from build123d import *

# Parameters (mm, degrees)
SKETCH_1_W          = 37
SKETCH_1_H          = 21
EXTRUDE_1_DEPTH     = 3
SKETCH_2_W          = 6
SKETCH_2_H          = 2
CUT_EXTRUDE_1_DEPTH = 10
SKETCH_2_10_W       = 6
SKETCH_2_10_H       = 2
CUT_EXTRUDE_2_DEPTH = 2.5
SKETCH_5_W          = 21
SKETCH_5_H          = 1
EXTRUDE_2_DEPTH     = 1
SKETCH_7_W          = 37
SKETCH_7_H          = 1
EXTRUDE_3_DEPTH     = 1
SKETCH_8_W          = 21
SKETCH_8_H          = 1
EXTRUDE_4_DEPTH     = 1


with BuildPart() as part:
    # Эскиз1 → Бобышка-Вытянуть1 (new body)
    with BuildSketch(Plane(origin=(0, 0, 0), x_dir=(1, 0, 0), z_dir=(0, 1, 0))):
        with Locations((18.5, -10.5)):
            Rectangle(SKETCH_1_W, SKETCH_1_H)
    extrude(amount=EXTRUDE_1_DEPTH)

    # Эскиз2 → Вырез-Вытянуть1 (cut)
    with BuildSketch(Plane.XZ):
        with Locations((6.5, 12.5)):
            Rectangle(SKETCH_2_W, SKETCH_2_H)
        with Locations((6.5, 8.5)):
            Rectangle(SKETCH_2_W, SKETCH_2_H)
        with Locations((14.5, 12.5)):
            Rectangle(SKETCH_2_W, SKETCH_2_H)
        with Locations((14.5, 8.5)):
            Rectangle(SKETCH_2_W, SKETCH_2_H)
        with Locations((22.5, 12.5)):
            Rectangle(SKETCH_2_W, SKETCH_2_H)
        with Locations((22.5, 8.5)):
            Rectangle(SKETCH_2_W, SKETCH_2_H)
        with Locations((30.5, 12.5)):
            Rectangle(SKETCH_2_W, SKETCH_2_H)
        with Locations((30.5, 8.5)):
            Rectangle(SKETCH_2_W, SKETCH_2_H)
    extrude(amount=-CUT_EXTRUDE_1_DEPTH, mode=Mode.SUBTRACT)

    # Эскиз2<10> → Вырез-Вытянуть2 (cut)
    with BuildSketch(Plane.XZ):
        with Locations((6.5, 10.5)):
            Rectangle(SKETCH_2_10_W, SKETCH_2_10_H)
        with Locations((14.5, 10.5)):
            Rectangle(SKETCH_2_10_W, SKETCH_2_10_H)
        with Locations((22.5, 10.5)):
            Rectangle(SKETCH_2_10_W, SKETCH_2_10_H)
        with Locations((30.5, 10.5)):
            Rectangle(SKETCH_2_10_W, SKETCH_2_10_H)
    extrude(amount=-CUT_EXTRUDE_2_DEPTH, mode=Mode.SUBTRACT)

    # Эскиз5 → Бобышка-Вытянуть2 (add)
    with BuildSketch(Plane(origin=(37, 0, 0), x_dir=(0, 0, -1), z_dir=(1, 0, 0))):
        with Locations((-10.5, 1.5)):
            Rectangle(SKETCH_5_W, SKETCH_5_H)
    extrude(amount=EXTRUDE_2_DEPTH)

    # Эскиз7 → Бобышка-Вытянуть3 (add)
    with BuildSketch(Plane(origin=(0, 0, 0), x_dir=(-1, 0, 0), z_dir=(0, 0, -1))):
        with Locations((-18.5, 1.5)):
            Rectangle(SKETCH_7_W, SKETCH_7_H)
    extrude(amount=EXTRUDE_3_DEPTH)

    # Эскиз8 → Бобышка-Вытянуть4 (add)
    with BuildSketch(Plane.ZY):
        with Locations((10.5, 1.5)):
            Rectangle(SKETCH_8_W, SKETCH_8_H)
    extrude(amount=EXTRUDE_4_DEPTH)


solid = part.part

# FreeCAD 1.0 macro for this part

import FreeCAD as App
import Part
import Sketcher
from FreeCAD import Vector
Q = App.Units.Quantity

doc = App.newDocument("Part")
body = doc.addObject("PartDesign::Body", "Body")

sketch1 = body.newObject("Sketcher::SketchObject", "Sketch")
sketch1.AttachmentSupport = (doc.getObject("XZ_Plane"), [""])
sketch1.MapMode = "FlatFace"
sketch1.addGeometry(Part.LineSegment(Vector(0, 0, 0), Vector(0, 21, 0)), False)
sketch1.addGeometry(Part.LineSegment(Vector(0, 21, 0), Vector(37, 21, 0)), False)
sketch1.addGeometry(Part.LineSegment(Vector(37, 21, 0), Vector(37, 0, 0)), False)
sketch1.addGeometry(Part.LineSegment(Vector(37, 0, 0), Vector(0, 0, 0)), False)
sketch1.addConstraint(Sketcher.Constraint("Coincident", 0, 2, 1, 1))
sketch1.addConstraint(Sketcher.Constraint("Coincident", 1, 2, 2, 1))
sketch1.addConstraint(Sketcher.Constraint("Coincident", 2, 2, 3, 1))
sketch1.addConstraint(Sketcher.Constraint("Coincident", 3, 2, 0, 1))
sketch1.addConstraint(Sketcher.Constraint("Vertical", 0))
sketch1.addConstraint(Sketcher.Constraint("Horizontal", 1))
sketch1.addConstraint(Sketcher.Constraint("Vertical", 2))
sketch1.addConstraint(Sketcher.Constraint("Horizontal", 3))
sketch1.addConstraint(Sketcher.Constraint("Coincident", 3, 2, -1, 1))
sketch1.addConstraint(Sketcher.Constraint("DistanceX", 1, 1, 1, 2, Q("37 mm")))
sketch1.addConstraint(Sketcher.Constraint("DistanceY", 0, 1, 0, 2, Q("21 mm")))
pad1 = body.newObject("PartDesign::Pad", "Pad")
pad1.Profile = sketch1
pad1.Length = 3
pad1.Reversed = True

sketch2 = body.newObject("Sketcher::SketchObject", "Sketch001")
sketch2.AttachmentSupport = (doc.getObject("XZ_Plane"), [""])
sketch2.MapMode = "FlatFace"
sketch2.addGeometry(Part.LineSegment(Vector(3.5, 13.5, 0), Vector(3.5, 11.5, 0)), False)
sketch2.addGeometry(Part.LineSegment(Vector(3.5, 11.5, 0), Vector(9.5, 11.5, 0)), False)
sketch2.addGeometry(Part.LineSegment(Vector(9.5, 11.5, 0), Vector(9.5, 13.5, 0)), False)
sketch2.addGeometry(Part.LineSegment(Vector(9.5, 13.5, 0), Vector(3.5, 13.5, 0)), False)
sketch2.addGeometry(Part.LineSegment(Vector(3.5, 9.5, 0), Vector(3.5, 7.5, 0)), False)
sketch2.addGeometry(Part.LineSegment(Vector(3.5, 7.5, 0), Vector(9.5, 7.5, 0)), False)
sketch2.addGeometry(Part.LineSegment(Vector(9.5, 7.5, 0), Vector(9.5, 9.5, 0)), False)
sketch2.addGeometry(Part.LineSegment(Vector(9.5, 9.5, 0), Vector(3.5, 9.5, 0)), False)
sketch2.addGeometry(Part.LineSegment(Vector(11.5, 13.5, 0), Vector(11.5, 11.5, 0)), False)
sketch2.addGeometry(Part.LineSegment(Vector(11.5, 11.5, 0), Vector(17.5, 11.5, 0)), False)
sketch2.addGeometry(Part.LineSegment(Vector(17.5, 11.5, 0), Vector(17.5, 13.5, 0)), False)
sketch2.addGeometry(Part.LineSegment(Vector(17.5, 13.5, 0), Vector(11.5, 13.5, 0)), False)
sketch2.addGeometry(Part.LineSegment(Vector(11.5, 9.5, 0), Vector(11.5, 7.5, 0)), False)
sketch2.addGeometry(Part.LineSegment(Vector(11.5, 7.5, 0), Vector(17.5, 7.5, 0)), False)
sketch2.addGeometry(Part.LineSegment(Vector(17.5, 7.5, 0), Vector(17.5, 9.5, 0)), False)
sketch2.addGeometry(Part.LineSegment(Vector(17.5, 9.5, 0), Vector(11.5, 9.5, 0)), False)
sketch2.addGeometry(Part.LineSegment(Vector(19.5, 13.5, 0), Vector(19.5, 11.5, 0)), False)
sketch2.addGeometry(Part.LineSegment(Vector(19.5, 11.5, 0), Vector(25.5, 11.5, 0)), False)
sketch2.addGeometry(Part.LineSegment(Vector(25.5, 11.5, 0), Vector(25.5, 13.5, 0)), False)
sketch2.addGeometry(Part.LineSegment(Vector(25.5, 13.5, 0), Vector(19.5, 13.5, 0)), False)
sketch2.addGeometry(Part.LineSegment(Vector(19.5, 9.5, 0), Vector(19.5, 7.5, 0)), False)
sketch2.addGeometry(Part.LineSegment(Vector(19.5, 7.5, 0), Vector(25.5, 7.5, 0)), False)
sketch2.addGeometry(Part.LineSegment(Vector(25.5, 7.5, 0), Vector(25.5, 9.5, 0)), False)
sketch2.addGeometry(Part.LineSegment(Vector(25.5, 9.5, 0), Vector(19.5, 9.5, 0)), False)
sketch2.addGeometry(Part.LineSegment(Vector(27.5, 13.5, 0), Vector(27.5, 11.5, 0)), False)
sketch2.addGeometry(Part.LineSegment(Vector(27.5, 11.5, 0), Vector(33.5, 11.5, 0)), False)
sketch2.addGeometry(Part.LineSegment(Vector(33.5, 11.5, 0), Vector(33.5, 13.5, 0)), False)
sketch2.addGeometry(Part.LineSegment(Vector(33.5, 13.5, 0), Vector(27.5, 13.5, 0)), False)
sketch2.addGeometry(Part.LineSegment(Vector(27.5, 9.5, 0), Vector(27.5, 7.5, 0)), False)
sketch2.addGeometry(Part.LineSegment(Vector(27.5, 7.5, 0), Vector(33.5, 7.5, 0)), False)
sketch2.addGeometry(Part.LineSegment(Vector(33.5, 7.5, 0), Vector(33.5, 9.5, 0)), False)
sketch2.addGeometry(Part.LineSegment(Vector(33.5, 9.5, 0), Vector(27.5, 9.5, 0)), False)
sketch2.addConstraint(Sketcher.Constraint("Coincident", 0, 2, 1, 1))
sketch2.addConstraint(Sketcher.Constraint("Coincident", 1, 2, 2, 1))
sketch2.addConstraint(Sketcher.Constraint("Coincident", 2, 2, 3, 1))
sketch2.addConstraint(Sketcher.Constraint("Coincident", 3, 2, 0, 1))
sketch2.addConstraint(Sketcher.Constraint("Coincident", 4, 2, 5, 1))
sketch2.addConstraint(Sketcher.Constraint("Coincident", 5, 2, 6, 1))
sketch2.addConstraint(Sketcher.Constraint("Coincident", 6, 2, 7, 1))
sketch2.addConstraint(Sketcher.Constraint("Coincident", 7, 2, 4, 1))
sketch2.addConstraint(Sketcher.Constraint("Coincident", 8, 2, 9, 1))
sketch2.addConstraint(Sketcher.Constraint("Coincident", 9, 2, 10, 1))
sketch2.addConstraint(Sketcher.Constraint("Coincident", 10, 2, 11, 1))
sketch2.addConstraint(Sketcher.Constraint("Coincident", 11, 2, 8, 1))
sketch2.addConstraint(Sketcher.Constraint("Coincident", 12, 2, 13, 1))
sketch2.addConstraint(Sketcher.Constraint("Coincident", 13, 2, 14, 1))
sketch2.addConstraint(Sketcher.Constraint("Coincident", 14, 2, 15, 1))
sketch2.addConstraint(Sketcher.Constraint("Coincident", 15, 2, 12, 1))
sketch2.addConstraint(Sketcher.Constraint("Coincident", 16, 2, 17, 1))
sketch2.addConstraint(Sketcher.Constraint("Coincident", 17, 2, 18, 1))
sketch2.addConstraint(Sketcher.Constraint("Coincident", 18, 2, 19, 1))
sketch2.addConstraint(Sketcher.Constraint("Coincident", 19, 2, 16, 1))
sketch2.addConstraint(Sketcher.Constraint("Coincident", 20, 2, 21, 1))
sketch2.addConstraint(Sketcher.Constraint("Coincident", 21, 2, 22, 1))
sketch2.addConstraint(Sketcher.Constraint("Coincident", 22, 2, 23, 1))
sketch2.addConstraint(Sketcher.Constraint("Coincident", 23, 2, 20, 1))
sketch2.addConstraint(Sketcher.Constraint("Coincident", 24, 2, 25, 1))
sketch2.addConstraint(Sketcher.Constraint("Coincident", 25, 2, 26, 1))
sketch2.addConstraint(Sketcher.Constraint("Coincident", 26, 2, 27, 1))
sketch2.addConstraint(Sketcher.Constraint("Coincident", 27, 2, 24, 1))
sketch2.addConstraint(Sketcher.Constraint("Coincident", 28, 2, 29, 1))
sketch2.addConstraint(Sketcher.Constraint("Coincident", 29, 2, 30, 1))
sketch2.addConstraint(Sketcher.Constraint("Coincident", 30, 2, 31, 1))
sketch2.addConstraint(Sketcher.Constraint("Coincident", 31, 2, 28, 1))
sketch2.addConstraint(Sketcher.Constraint("Vertical", 0))
sketch2.addConstraint(Sketcher.Constraint("Horizontal", 1))
sketch2.addConstraint(Sketcher.Constraint("Vertical", 2))
sketch2.addConstraint(Sketcher.Constraint("Horizontal", 3))
sketch2.addConstraint(Sketcher.Constraint("Vertical", 4))
sketch2.addConstraint(Sketcher.Constraint("Horizontal", 5))
sketch2.addConstraint(Sketcher.Constraint("Vertical", 6))
sketch2.addConstraint(Sketcher.Constraint("Horizontal", 7))
sketch2.addConstraint(Sketcher.Constraint("Vertical", 8))
sketch2.addConstraint(Sketcher.Constraint("Horizontal", 9))
sketch2.addConstraint(Sketcher.Constraint("Vertical", 10))
sketch2.addConstraint(Sketcher.Constraint("Horizontal", 11))
sketch2.addConstraint(Sketcher.Constraint("Vertical", 12))
sketch2.addConstraint(Sketcher.Constraint("Horizontal", 13))
sketch2.addConstraint(Sketcher.Constraint("Vertical", 14))
sketch2.addConstraint(Sketcher.Constraint("Horizontal", 15))
sketch2.addConstraint(Sketcher.Constraint("Vertical", 16))
sketch2.addConstraint(Sketcher.Constraint("Horizontal", 17))
sketch2.addConstraint(Sketcher.Constraint("Vertical", 18))
sketch2.addConstraint(Sketcher.Constraint("Horizontal", 19))
sketch2.addConstraint(Sketcher.Constraint("Vertical", 20))
sketch2.addConstraint(Sketcher.Constraint("Horizontal", 21))
sketch2.addConstraint(Sketcher.Constraint("Vertical", 22))
sketch2.addConstraint(Sketcher.Constraint("Horizontal", 23))
sketch2.addConstraint(Sketcher.Constraint("Vertical", 24))
sketch2.addConstraint(Sketcher.Constraint("Horizontal", 25))
sketch2.addConstraint(Sketcher.Constraint("Vertical", 26))
sketch2.addConstraint(Sketcher.Constraint("Horizontal", 27))
sketch2.addConstraint(Sketcher.Constraint("Vertical", 28))
sketch2.addConstraint(Sketcher.Constraint("Horizontal", 29))
sketch2.addConstraint(Sketcher.Constraint("Vertical", 30))
sketch2.addConstraint(Sketcher.Constraint("Horizontal", 31))
sketch2.addConstraint(Sketcher.Constraint("Horizontal", 1, 2, 8, 2))
sketch2.addConstraint(Sketcher.Constraint("Horizontal", 3, 2, 10, 2))
sketch2.addConstraint(Sketcher.Constraint("Horizontal", 5, 2, 12, 2))
sketch2.addConstraint(Sketcher.Constraint("Horizontal", 7, 2, 14, 2))
sketch2.addConstraint(Sketcher.Constraint("Horizontal", 9, 2, 16, 2))
sketch2.addConstraint(Sketcher.Constraint("Horizontal", 11, 2, 18, 2))
sketch2.addConstraint(Sketcher.Constraint("Horizontal", 13, 2, 20, 2))
sketch2.addConstraint(Sketcher.Constraint("Horizontal", 15, 2, 22, 2))
sketch2.addConstraint(Sketcher.Constraint("Horizontal", 17, 2, 24, 2))
sketch2.addConstraint(Sketcher.Constraint("Horizontal", 19, 2, 26, 2))
sketch2.addConstraint(Sketcher.Constraint("Horizontal", 21, 2, 28, 2))
sketch2.addConstraint(Sketcher.Constraint("Horizontal", 23, 2, 30, 2))
sketch2.addConstraint(Sketcher.Constraint("Vertical", 3, 2, 4, 2))
sketch2.addConstraint(Sketcher.Constraint("Vertical", 2, 2, 5, 2))
sketch2.addConstraint(Sketcher.Constraint("Vertical", 11, 2, 12, 2))
sketch2.addConstraint(Sketcher.Constraint("Vertical", 10, 2, 13, 2))
sketch2.addConstraint(Sketcher.Constraint("Vertical", 19, 2, 20, 2))
sketch2.addConstraint(Sketcher.Constraint("Vertical", 18, 2, 21, 2))
sketch2.addConstraint(Sketcher.Constraint("Vertical", 27, 2, 28, 2))
sketch2.addConstraint(Sketcher.Constraint("Vertical", 26, 2, 29, 2))
sketch2.addConstraint(Sketcher.Constraint("Equal", 7, 9))
sketch2.addConstraint(Sketcher.Constraint("Equal", 15, 17))
sketch2.addConstraint(Sketcher.Constraint("Equal", 23, 25))
sketch2.addConstraint(Sketcher.Constraint("Equal", 2, 4))
sketch2.addConstraint(Sketcher.Constraint("DistanceX", 1, 1, 1, 2, Q("6 mm")))
sketch2.addConstraint(Sketcher.Constraint("DistanceY", 0, 2, 0, 1, Q("2 mm")))
sketch2.addConstraint(Sketcher.Constraint("DistanceY", 4, 2, 0, 2, Q("4 mm")))
sketch2.addConstraint(Sketcher.Constraint("DistanceX", 1, 2, 8, 2, Q("2 mm")))
sketch2.addConstraint(Sketcher.Constraint("DistanceX", 9, 2, 16, 2, Q("2 mm")))
sketch2.addConstraint(Sketcher.Constraint("DistanceX", 17, 2, 24, 2, Q("2 mm")))
sketch2.addConstraint(Sketcher.Constraint("DistanceX", -1, 1, 0, 2, Q("3.5 mm")))
sketch2.addConstraint(Sketcher.Constraint("DistanceY", -1, 1, 0, 2, Q("11.5 mm")))
pocket1 = body.newObject("PartDesign::Pocket", "Pocket")
pocket1.Profile = sketch2
pocket1.Length = 10

sketch3 = body.newObject("Sketcher::SketchObject", "Sketch002")
sketch3.AttachmentSupport = (doc.getObject("XZ_Plane"), [""])
sketch3.MapMode = "FlatFace"
sketch3.addGeometry(Part.LineSegment(Vector(3.5, 11.5, 0), Vector(3.5, 9.5, 0)), False)
sketch3.addGeometry(Part.LineSegment(Vector(3.5, 9.5, 0), Vector(9.5, 9.5, 0)), False)
sketch3.addGeometry(Part.LineSegment(Vector(9.5, 9.5, 0), Vector(9.5, 11.5, 0)), False)
sketch3.addGeometry(Part.LineSegment(Vector(9.5, 11.5, 0), Vector(3.5, 11.5, 0)), False)
sketch3.addGeometry(Part.LineSegment(Vector(11.5, 11.5, 0), Vector(11.5, 9.5, 0)), False)
sketch3.addGeometry(Part.LineSegment(Vector(11.5, 9.5, 0), Vector(17.5, 9.5, 0)), False)
sketch3.addGeometry(Part.LineSegment(Vector(17.5, 9.5, 0), Vector(17.5, 11.5, 0)), False)
sketch3.addGeometry(Part.LineSegment(Vector(17.5, 11.5, 0), Vector(11.5, 11.5, 0)), False)
sketch3.addGeometry(Part.LineSegment(Vector(19.5, 11.5, 0), Vector(19.5, 9.5, 0)), False)
sketch3.addGeometry(Part.LineSegment(Vector(19.5, 9.5, 0), Vector(25.5, 9.5, 0)), False)
sketch3.addGeometry(Part.LineSegment(Vector(25.5, 9.5, 0), Vector(25.5, 11.5, 0)), False)
sketch3.addGeometry(Part.LineSegment(Vector(25.5, 11.5, 0), Vector(19.5, 11.5, 0)), False)
sketch3.addGeometry(Part.LineSegment(Vector(27.5, 11.5, 0), Vector(27.5, 9.5, 0)), False)
sketch3.addGeometry(Part.LineSegment(Vector(27.5, 9.5, 0), Vector(33.5, 9.5, 0)), False)
sketch3.addGeometry(Part.LineSegment(Vector(33.5, 9.5, 0), Vector(33.5, 11.5, 0)), False)
sketch3.addGeometry(Part.LineSegment(Vector(33.5, 11.5, 0), Vector(27.5, 11.5, 0)), False)
sketch3.addConstraint(Sketcher.Constraint("Coincident", 0, 2, 1, 1))
sketch3.addConstraint(Sketcher.Constraint("Coincident", 1, 2, 2, 1))
sketch3.addConstraint(Sketcher.Constraint("Coincident", 2, 2, 3, 1))
sketch3.addConstraint(Sketcher.Constraint("Coincident", 3, 2, 0, 1))
sketch3.addConstraint(Sketcher.Constraint("Coincident", 4, 2, 5, 1))
sketch3.addConstraint(Sketcher.Constraint("Coincident", 5, 2, 6, 1))
sketch3.addConstraint(Sketcher.Constraint("Coincident", 6, 2, 7, 1))
sketch3.addConstraint(Sketcher.Constraint("Coincident", 7, 2, 4, 1))
sketch3.addConstraint(Sketcher.Constraint("Coincident", 8, 2, 9, 1))
sketch3.addConstraint(Sketcher.Constraint("Coincident", 9, 2, 10, 1))
sketch3.addConstraint(Sketcher.Constraint("Coincident", 10, 2, 11, 1))
sketch3.addConstraint(Sketcher.Constraint("Coincident", 11, 2, 8, 1))
sketch3.addConstraint(Sketcher.Constraint("Coincident", 12, 2, 13, 1))
sketch3.addConstraint(Sketcher.Constraint("Coincident", 13, 2, 14, 1))
sketch3.addConstraint(Sketcher.Constraint("Coincident", 14, 2, 15, 1))
sketch3.addConstraint(Sketcher.Constraint("Coincident", 15, 2, 12, 1))
sketch3.addConstraint(Sketcher.Constraint("Vertical", 0))
sketch3.addConstraint(Sketcher.Constraint("Horizontal", 1))
sketch3.addConstraint(Sketcher.Constraint("Vertical", 2))
sketch3.addConstraint(Sketcher.Constraint("Horizontal", 3))
sketch3.addConstraint(Sketcher.Constraint("Vertical", 4))
sketch3.addConstraint(Sketcher.Constraint("Horizontal", 5))
sketch3.addConstraint(Sketcher.Constraint("Vertical", 6))
sketch3.addConstraint(Sketcher.Constraint("Horizontal", 7))
sketch3.addConstraint(Sketcher.Constraint("Vertical", 8))
sketch3.addConstraint(Sketcher.Constraint("Horizontal", 9))
sketch3.addConstraint(Sketcher.Constraint("Vertical", 10))
sketch3.addConstraint(Sketcher.Constraint("Horizontal", 11))
sketch3.addConstraint(Sketcher.Constraint("Vertical", 12))
sketch3.addConstraint(Sketcher.Constraint("Horizontal", 13))
sketch3.addConstraint(Sketcher.Constraint("Vertical", 14))
sketch3.addConstraint(Sketcher.Constraint("Horizontal", 15))
sketch3.addConstraint(Sketcher.Constraint("Horizontal", 1, 2, 4, 2))
sketch3.addConstraint(Sketcher.Constraint("Horizontal", 3, 2, 6, 2))
sketch3.addConstraint(Sketcher.Constraint("Horizontal", 5, 2, 8, 2))
sketch3.addConstraint(Sketcher.Constraint("Horizontal", 7, 2, 10, 2))
sketch3.addConstraint(Sketcher.Constraint("Horizontal", 9, 2, 12, 2))
sketch3.addConstraint(Sketcher.Constraint("Horizontal", 11, 2, 14, 2))
sketch3.addConstraint(Sketcher.Constraint("Equal", 3, 5))
sketch3.addConstraint(Sketcher.Constraint("Equal", 7, 9))
sketch3.addConstraint(Sketcher.Constraint("Equal", 11, 13))
sketch3.addConstraint(Sketcher.Constraint("DistanceX", 1, 1, 1, 2, Q("6 mm")))
sketch3.addConstraint(Sketcher.Constraint("DistanceY", 0, 2, 0, 1, Q("2 mm")))
sketch3.addConstraint(Sketcher.Constraint("DistanceX", 1, 2, 4, 2, Q("2 mm")))
sketch3.addConstraint(Sketcher.Constraint("DistanceX", 5, 2, 8, 2, Q("2 mm")))
sketch3.addConstraint(Sketcher.Constraint("DistanceX", 9, 2, 12, 2, Q("2 mm")))
sketch3.addConstraint(Sketcher.Constraint("DistanceX", -1, 1, 0, 2, Q("3.5 mm")))
sketch3.addConstraint(Sketcher.Constraint("DistanceY", -1, 1, 0, 2, Q("9.5 mm")))
pocket2 = body.newObject("PartDesign::Pocket", "Pocket001")
pocket2.Profile = sketch3
pocket2.Length = 2.5

sketch4 = body.newObject("Sketcher::SketchObject", "Sketch003")
sketch4.AttachmentSupport = (doc.getObject("YZ_Plane"), [""])
sketch4.MapMode = "FlatFace"
sketch4.AttachmentOffset = App.Placement(Vector(0, 0, 37), App.Rotation())
sketch4.addGeometry(Part.LineSegment(Vector(2, 21, 0), Vector(1, 21, 0)), False)
sketch4.addGeometry(Part.LineSegment(Vector(1, 21, 0), Vector(1, 0, 0)), False)
sketch4.addGeometry(Part.LineSegment(Vector(1, 0, 0), Vector(2, 0, 0)), False)
sketch4.addGeometry(Part.LineSegment(Vector(2, 0, 0), Vector(2, 21, 0)), False)
sketch4.addConstraint(Sketcher.Constraint("Coincident", 0, 2, 1, 1))
sketch4.addConstraint(Sketcher.Constraint("Coincident", 1, 2, 2, 1))
sketch4.addConstraint(Sketcher.Constraint("Coincident", 2, 2, 3, 1))
sketch4.addConstraint(Sketcher.Constraint("Coincident", 3, 2, 0, 1))
sketch4.addConstraint(Sketcher.Constraint("Horizontal", 0))
sketch4.addConstraint(Sketcher.Constraint("Vertical", 1))
sketch4.addConstraint(Sketcher.Constraint("Horizontal", 2))
sketch4.addConstraint(Sketcher.Constraint("Vertical", 3))
sketch4.addConstraint(Sketcher.Constraint("PointOnObject", 1, 2, -1))
sketch4.addConstraint(Sketcher.Constraint("DistanceX", 0, 2, 0, 1, Q("1 mm")))
sketch4.addConstraint(Sketcher.Constraint("DistanceY", 1, 2, 1, 1, Q("21 mm")))
sketch4.addConstraint(Sketcher.Constraint("DistanceX", -1, 1, 0, 2, Q("1 mm")))
pad2 = body.newObject("PartDesign::Pad", "Pad001")
pad2.Profile = sketch4
pad2.Length = 1

sketch5 = body.newObject("Sketcher::SketchObject", "Sketch004")
sketch5.AttachmentSupport = (doc.getObject("XY_Plane"), [""])
sketch5.MapMode = "FlatFace"
sketch5.addGeometry(Part.LineSegment(Vector(37, 2, 0), Vector(37, 1, 0)), False)
sketch5.addGeometry(Part.LineSegment(Vector(37, 1, 0), Vector(0, 1, 0)), False)
sketch5.addGeometry(Part.LineSegment(Vector(0, 1, 0), Vector(0, 2, 0)), False)
sketch5.addGeometry(Part.LineSegment(Vector(0, 2, 0), Vector(37, 2, 0)), False)
sketch5.addConstraint(Sketcher.Constraint("Coincident", 0, 2, 1, 1))
sketch5.addConstraint(Sketcher.Constraint("Coincident", 1, 2, 2, 1))
sketch5.addConstraint(Sketcher.Constraint("Coincident", 2, 2, 3, 1))
sketch5.addConstraint(Sketcher.Constraint("Coincident", 3, 2, 0, 1))
sketch5.addConstraint(Sketcher.Constraint("Vertical", 0))
sketch5.addConstraint(Sketcher.Constraint("Horizontal", 1))
sketch5.addConstraint(Sketcher.Constraint("Vertical", 2))
sketch5.addConstraint(Sketcher.Constraint("Horizontal", 3))
sketch5.addConstraint(Sketcher.Constraint("PointOnObject", 1, 2, -2))
sketch5.addConstraint(Sketcher.Constraint("DistanceX", 1, 2, 1, 1, Q("37 mm")))
sketch5.addConstraint(Sketcher.Constraint("DistanceY", 0, 2, 0, 1, Q("1 mm")))
sketch5.addConstraint(Sketcher.Constraint("DistanceY", -1, 1, 0, 2, Q("1 mm")))
pad3 = body.newObject("PartDesign::Pad", "Pad002")
pad3.Profile = sketch5
pad3.Length = 1
pad3.Reversed = True

sketch6 = body.newObject("Sketcher::SketchObject", "Sketch005")
sketch6.AttachmentSupport = (doc.getObject("YZ_Plane"), [""])
sketch6.MapMode = "FlatFace"
sketch6.addGeometry(Part.LineSegment(Vector(2, 0, 0), Vector(1, 0, 0)), False)
sketch6.addGeometry(Part.LineSegment(Vector(1, 0, 0), Vector(1, 21, 0)), False)
sketch6.addGeometry(Part.LineSegment(Vector(1, 21, 0), Vector(2, 21, 0)), False)
sketch6.addGeometry(Part.LineSegment(Vector(2, 21, 0), Vector(2, 0, 0)), False)
sketch6.addConstraint(Sketcher.Constraint("Coincident", 0, 2, 1, 1))
sketch6.addConstraint(Sketcher.Constraint("Coincident", 1, 2, 2, 1))
sketch6.addConstraint(Sketcher.Constraint("Coincident", 2, 2, 3, 1))
sketch6.addConstraint(Sketcher.Constraint("Coincident", 3, 2, 0, 1))
sketch6.addConstraint(Sketcher.Constraint("Horizontal", 0))
sketch6.addConstraint(Sketcher.Constraint("Vertical", 1))
sketch6.addConstraint(Sketcher.Constraint("Horizontal", 2))
sketch6.addConstraint(Sketcher.Constraint("Vertical", 3))
sketch6.addConstraint(Sketcher.Constraint("PointOnObject", 0, 2, -1))
sketch6.addConstraint(Sketcher.Constraint("DistanceX", 0, 2, 0, 1, Q("1 mm")))
sketch6.addConstraint(Sketcher.Constraint("DistanceY", 1, 1, 1, 2, Q("21 mm")))
sketch6.addConstraint(Sketcher.Constraint("DistanceX", -1, 1, 0, 2, Q("1 mm")))
pad4 = body.newObject("PartDesign::Pad", "Pad003")
pad4.Profile = sketch6
pad4.Length = 1
pad4.Reversed = True

doc.recompute()
